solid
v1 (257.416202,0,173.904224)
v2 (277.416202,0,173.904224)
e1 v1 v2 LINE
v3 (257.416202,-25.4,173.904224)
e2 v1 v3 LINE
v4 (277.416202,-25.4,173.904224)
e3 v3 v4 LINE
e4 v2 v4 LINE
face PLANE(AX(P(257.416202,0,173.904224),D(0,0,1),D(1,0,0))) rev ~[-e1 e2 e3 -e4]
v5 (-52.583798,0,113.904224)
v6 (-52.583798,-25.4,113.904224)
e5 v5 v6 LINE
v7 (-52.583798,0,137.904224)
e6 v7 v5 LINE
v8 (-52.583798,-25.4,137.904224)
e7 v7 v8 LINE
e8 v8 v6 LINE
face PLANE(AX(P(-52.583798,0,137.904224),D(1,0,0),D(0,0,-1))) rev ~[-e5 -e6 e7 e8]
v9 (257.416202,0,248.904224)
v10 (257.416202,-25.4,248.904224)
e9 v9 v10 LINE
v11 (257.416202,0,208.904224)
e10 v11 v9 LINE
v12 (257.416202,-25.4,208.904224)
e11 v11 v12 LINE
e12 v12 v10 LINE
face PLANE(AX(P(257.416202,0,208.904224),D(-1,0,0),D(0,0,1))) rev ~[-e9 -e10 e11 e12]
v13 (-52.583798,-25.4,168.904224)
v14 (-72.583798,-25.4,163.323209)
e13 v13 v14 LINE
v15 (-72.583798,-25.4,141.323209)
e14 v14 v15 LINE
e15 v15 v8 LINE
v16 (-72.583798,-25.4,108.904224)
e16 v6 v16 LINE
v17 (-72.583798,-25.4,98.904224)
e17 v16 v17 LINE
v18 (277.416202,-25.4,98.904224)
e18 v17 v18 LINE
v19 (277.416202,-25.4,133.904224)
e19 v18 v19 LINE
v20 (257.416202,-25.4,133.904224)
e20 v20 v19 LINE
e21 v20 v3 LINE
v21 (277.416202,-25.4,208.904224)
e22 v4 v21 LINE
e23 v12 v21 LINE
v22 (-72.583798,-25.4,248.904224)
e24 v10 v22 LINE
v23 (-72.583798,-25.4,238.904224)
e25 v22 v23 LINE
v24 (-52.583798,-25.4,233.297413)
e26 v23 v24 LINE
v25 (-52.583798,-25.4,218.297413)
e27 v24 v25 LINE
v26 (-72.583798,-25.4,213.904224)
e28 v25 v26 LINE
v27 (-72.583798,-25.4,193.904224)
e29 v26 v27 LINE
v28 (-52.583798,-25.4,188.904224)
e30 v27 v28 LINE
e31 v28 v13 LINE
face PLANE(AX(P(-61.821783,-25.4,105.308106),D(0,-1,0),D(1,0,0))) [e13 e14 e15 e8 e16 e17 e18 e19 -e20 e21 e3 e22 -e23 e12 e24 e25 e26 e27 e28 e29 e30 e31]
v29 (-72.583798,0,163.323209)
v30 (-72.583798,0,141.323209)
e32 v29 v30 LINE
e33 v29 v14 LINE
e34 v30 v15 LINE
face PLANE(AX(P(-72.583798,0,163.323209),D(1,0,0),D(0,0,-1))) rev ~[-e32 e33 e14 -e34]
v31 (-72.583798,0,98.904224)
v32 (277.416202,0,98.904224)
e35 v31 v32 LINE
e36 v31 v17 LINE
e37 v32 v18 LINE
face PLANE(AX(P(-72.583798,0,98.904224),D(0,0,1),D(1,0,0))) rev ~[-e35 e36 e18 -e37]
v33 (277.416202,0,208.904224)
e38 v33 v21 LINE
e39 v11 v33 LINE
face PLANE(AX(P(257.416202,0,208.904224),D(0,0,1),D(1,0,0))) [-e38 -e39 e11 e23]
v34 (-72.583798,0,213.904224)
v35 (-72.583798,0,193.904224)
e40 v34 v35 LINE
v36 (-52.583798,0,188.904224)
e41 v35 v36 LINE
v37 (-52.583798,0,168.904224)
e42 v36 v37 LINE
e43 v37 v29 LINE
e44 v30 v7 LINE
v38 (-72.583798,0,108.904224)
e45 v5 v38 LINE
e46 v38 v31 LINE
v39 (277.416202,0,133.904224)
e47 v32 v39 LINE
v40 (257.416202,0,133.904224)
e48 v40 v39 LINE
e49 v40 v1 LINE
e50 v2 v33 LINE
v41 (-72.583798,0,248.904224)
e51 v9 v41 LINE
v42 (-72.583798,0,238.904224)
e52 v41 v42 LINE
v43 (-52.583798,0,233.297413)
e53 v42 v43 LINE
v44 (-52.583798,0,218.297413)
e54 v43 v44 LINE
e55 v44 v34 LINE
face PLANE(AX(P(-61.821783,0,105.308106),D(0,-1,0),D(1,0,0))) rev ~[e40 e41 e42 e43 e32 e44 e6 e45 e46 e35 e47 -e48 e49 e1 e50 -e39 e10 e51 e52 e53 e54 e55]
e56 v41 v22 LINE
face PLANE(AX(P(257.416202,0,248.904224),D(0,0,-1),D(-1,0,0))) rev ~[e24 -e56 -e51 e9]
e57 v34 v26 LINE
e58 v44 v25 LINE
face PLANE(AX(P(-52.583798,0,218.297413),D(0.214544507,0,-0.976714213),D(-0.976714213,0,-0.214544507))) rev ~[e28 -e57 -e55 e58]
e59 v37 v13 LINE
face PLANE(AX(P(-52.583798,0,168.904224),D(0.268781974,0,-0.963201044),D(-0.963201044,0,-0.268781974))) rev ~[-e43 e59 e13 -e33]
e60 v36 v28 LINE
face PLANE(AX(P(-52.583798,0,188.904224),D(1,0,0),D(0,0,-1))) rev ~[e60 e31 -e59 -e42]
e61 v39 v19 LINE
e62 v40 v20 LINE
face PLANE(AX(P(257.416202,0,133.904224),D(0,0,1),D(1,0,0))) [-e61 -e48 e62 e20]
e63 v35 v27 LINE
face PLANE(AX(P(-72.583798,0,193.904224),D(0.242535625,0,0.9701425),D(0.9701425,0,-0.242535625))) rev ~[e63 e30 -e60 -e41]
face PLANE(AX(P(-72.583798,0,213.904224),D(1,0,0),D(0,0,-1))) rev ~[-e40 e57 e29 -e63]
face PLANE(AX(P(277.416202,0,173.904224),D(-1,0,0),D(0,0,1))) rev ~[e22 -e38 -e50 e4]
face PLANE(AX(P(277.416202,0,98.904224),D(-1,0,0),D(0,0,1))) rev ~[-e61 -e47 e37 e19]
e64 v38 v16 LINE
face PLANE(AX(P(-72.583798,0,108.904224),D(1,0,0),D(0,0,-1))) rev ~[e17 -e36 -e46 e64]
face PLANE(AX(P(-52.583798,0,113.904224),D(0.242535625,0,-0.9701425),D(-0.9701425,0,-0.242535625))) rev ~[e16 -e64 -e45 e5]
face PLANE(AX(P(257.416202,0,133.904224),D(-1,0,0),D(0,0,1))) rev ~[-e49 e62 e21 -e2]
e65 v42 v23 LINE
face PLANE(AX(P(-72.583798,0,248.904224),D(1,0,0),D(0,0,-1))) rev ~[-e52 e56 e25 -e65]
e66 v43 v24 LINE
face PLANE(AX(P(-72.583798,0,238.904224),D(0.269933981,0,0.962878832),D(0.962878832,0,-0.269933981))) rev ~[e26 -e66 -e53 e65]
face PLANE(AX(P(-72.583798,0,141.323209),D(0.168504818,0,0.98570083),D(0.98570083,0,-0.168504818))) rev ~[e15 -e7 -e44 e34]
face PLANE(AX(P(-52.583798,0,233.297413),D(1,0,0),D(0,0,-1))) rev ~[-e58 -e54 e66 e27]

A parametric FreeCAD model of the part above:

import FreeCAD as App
import Part
import Sketcher

V = App.Vector
Q = App.Units.Quantity


def add_polygon(sketch, points):
    """Adds a closed chain of lines whose ends are joined by coincident constraints."""
    first, n = sketch.GeometryCount, len(points)
    for a, b in zip(points, points[1:] + points[:1]):
        sketch.addGeometry(Part.LineSegment(App.Vector(*a, 0), App.Vector(*b, 0)), False)
    for i in range(n):
        sketch.addConstraint(Sketcher.Constraint("Coincident", first + i, 2, first + (i + 1) % n, 1))

doc = App.newDocument("Part")
body = doc.addObject("PartDesign::Body", "Body")

# Sketch on XZ plane
sketch1 = body.newObject("Sketcher::SketchObject", "Sketch")
sketch1.AttachmentSupport = (doc.getObject("XZ_Plane"), [""])
sketch1.MapMode = "FlatFace"
add_polygon(sketch1, [(-73, 109), (-73, 99), (277, 99), (277, 134), (257, 134), (257, 174), (277, 174), (277, 209), (257, 209), (257, 249), (-73, 249), (-73, 239), (-53, 233), (-53, 218), (-73, 214), (-73, 194), (-53, 189), (-53, 169), (-73, 163), (-73, 141), (-53, 138), (-53, 114)])  # lines 0-21
sketch1.addConstraint(Sketcher.Constraint("Vertical", 0))
sketch1.addConstraint(Sketcher.Constraint("Horizontal", 1))
sketch1.addConstraint(Sketcher.Constraint("Vertical", 2))
sketch1.addConstraint(Sketcher.Constraint("Horizontal", 3))
sketch1.addConstraint(Sketcher.Constraint("Vertical", 4))
sketch1.addConstraint(Sketcher.Constraint("Horizontal", 5))
sketch1.addConstraint(Sketcher.Constraint("Vertical", 6))
sketch1.addConstraint(Sketcher.Constraint("Horizontal", 7))
sketch1.addConstraint(Sketcher.Constraint("Vertical", 8))
sketch1.addConstraint(Sketcher.Constraint("Horizontal", 9))
sketch1.addConstraint(Sketcher.Constraint("Vertical", 10))
sketch1.addConstraint(Sketcher.Constraint("Vertical", 12))
sketch1.addConstraint(Sketcher.Constraint("Vertical", 14))
sketch1.addConstraint(Sketcher.Constraint("Vertical", 16))
sketch1.addConstraint(Sketcher.Constraint("Vertical", 18))
sketch1.addConstraint(Sketcher.Constraint("Vertical", 20))
sketch1.addConstraint(Sketcher.Constraint("Vertical", 2, 2, 5, 2))
sketch1.addConstraint(Sketcher.Constraint("Vertical", 4, 2, 7, 2))
sketch1.addConstraint(Sketcher.Constraint("Vertical", 0, 2, 9, 2))
sketch1.addConstraint(Sketcher.Constraint("Vertical", 10, 2, 13, 2))
sketch1.addConstraint(Sketcher.Constraint("Vertical", 12, 2, 15, 2))
sketch1.addConstraint(Sketcher.Constraint("Vertical", 14, 2, 17, 2))
sketch1.addConstraint(Sketcher.Constraint("Vertical", 16, 2, 19, 2))
sketch1.addConstraint(Sketcher.Constraint("Equal", 2, 6))
sketch1.addConstraint(Sketcher.Constraint("Equal", 4, 8))
sketch1.addConstraint(Sketcher.Constraint("Equal", 0, 10))
sketch1.addConstraint(Sketcher.Constraint("Equal", 7, 14))
sketch1.addConstraint(Sketcher.Constraint("Equal", 14, 16))
sketch1.addConstraint(Sketcher.Constraint("Equal", 15, 21))
sketch1.addConstraint(Sketcher.Constraint("DistanceX", 1, 1, 1, 2, Q("350 mm")))
sketch1.addConstraint(Sketcher.Constraint("DistanceX", 3, 2, 3, 1, Q("20 mm")))
sketch1.addConstraint(Sketcher.Constraint("DistanceY", 0, 2, 0, 1, Q("10 mm")))
sketch1.addConstraint(Sketcher.Constraint("DistanceY", 2, 1, 2, 2, Q("35 mm")))
sketch1.addConstraint(Sketcher.Constraint("DistanceY", 4, 1, 4, 2, Q("40 mm")))
sketch1.addConstraint(Sketcher.Constraint("DistanceY", 12, 2, 12, 1, Q("15 mm")))
sketch1.addConstraint(Sketcher.Constraint("DistanceY", 18, 2, 18, 1, Q("22 mm")))
sketch1.addConstraint(Sketcher.Constraint("DistanceY", 20, 2, 20, 1, Q("24 mm")))
sketch1.addConstraint(Sketcher.Constraint("DistanceX", 10, 2, 11, 2, Q("20 mm")))
sketch1.addConstraint(Sketcher.Constraint("DistanceY", 13, 2, 10, 2, Q("25 mm")))
sketch1.addConstraint(Sketcher.Constraint("DistanceY", 15, 2, 14, 2, Q("5 mm")))
sketch1.addConstraint(Sketcher.Constraint("DistanceX", 0, 2, -1, 1, Q("72.583798 mm")))
sketch1.addConstraint(Sketcher.Constraint("Distance", 13, Q("20.476819 mm")))
sketch1.addConstraint(Sketcher.Constraint("DistanceY", -1, 1, 17, 2, Q("163.323209 mm")))
sketch1.addConstraint(Sketcher.Constraint("Distance", 17, Q("20.764097 mm")))
pad1 = body.newObject("PartDesign::Pad", "Pad")
pad1.Profile = sketch1
pad1.Length = 25.4

doc.recompute()
